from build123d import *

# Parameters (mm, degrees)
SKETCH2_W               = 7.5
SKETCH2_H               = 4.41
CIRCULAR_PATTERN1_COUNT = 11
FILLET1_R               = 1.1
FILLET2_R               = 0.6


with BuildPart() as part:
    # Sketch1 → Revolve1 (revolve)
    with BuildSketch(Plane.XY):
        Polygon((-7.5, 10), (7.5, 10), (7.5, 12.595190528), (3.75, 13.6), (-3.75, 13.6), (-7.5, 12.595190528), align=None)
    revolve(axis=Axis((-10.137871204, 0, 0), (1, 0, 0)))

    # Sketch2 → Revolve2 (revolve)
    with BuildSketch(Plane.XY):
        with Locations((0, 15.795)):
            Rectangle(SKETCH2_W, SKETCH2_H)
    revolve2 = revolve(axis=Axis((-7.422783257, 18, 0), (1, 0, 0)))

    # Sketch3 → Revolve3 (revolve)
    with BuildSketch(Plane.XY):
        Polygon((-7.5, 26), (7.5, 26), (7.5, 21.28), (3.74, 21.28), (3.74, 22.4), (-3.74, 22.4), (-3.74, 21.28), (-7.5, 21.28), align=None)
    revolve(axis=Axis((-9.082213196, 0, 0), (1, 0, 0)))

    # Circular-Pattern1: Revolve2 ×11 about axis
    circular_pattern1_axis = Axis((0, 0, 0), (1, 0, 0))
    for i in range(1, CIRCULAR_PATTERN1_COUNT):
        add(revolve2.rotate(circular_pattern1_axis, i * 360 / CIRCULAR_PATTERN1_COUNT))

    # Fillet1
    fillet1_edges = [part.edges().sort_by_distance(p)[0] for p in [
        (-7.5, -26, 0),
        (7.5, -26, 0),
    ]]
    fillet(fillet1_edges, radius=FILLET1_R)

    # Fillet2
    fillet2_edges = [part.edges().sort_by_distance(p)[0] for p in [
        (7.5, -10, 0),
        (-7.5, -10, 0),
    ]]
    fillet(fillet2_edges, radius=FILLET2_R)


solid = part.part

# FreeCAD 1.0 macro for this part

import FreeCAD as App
import Part
import Sketcher

V = App.Vector
Q = App.Units.Quantity


def edges_at(feature, points):
    """Names of the edges that pass closest to the given points."""
    edges = feature.Shape.Edges
    near = lambda p: min(range(len(edges)), key=lambda i: edges[i].distToShape(Part.Vertex(*p))[0])
    return sorted({f"Edge{near(p) + 1}" for p in points})

doc = App.newDocument("Part")
params = doc.addObject("Spreadsheet::Sheet", "Params")
for row, (alias, value) in enumerate([
    ("sketch1_width", "15 mm"),
    ("sketch1_width2", "7.5 mm"),
    ("revolution_angle", "360 deg"),
    ("sketch2_width", "7.5 mm"),
    ("sketch2_height", "4.41 mm"),
    ("revolution2_angle", "360 deg"),
    ("sketch3_width", "15 mm"),
    ("sketch3_width2", "3.76 mm"),
    ("sketch3_height", "4.72 mm"),
    ("sketch3_height2", "1.12 mm"),
    ("revolution3_angle", "360 deg"),
    ("fillet_radius", "1.1 mm"),
    ("fillet2_radius", "0.6 mm"),
], start=1):
    params.set(f"A{row}", alias)
    params.set(f"B{row}", "=" + value)
    params.setAlias(f"B{row}", alias)

body = doc.addObject("PartDesign::Body", "Body")

# Sketch on XY plane
sketch1 = body.newObject("Sketcher::SketchObject", "Sketch")
sketch1.AttachmentSupport = (doc.getObject("XY_Plane"), [""])
sketch1.MapMode = "FlatFace"
sketch1.addGeometry(Part.LineSegment(V(-7.5, 10, 0), V(7.5, 10, 0)), False)
sketch1.addGeometry(Part.LineSegment(V(7.5, 10, 0), V(7.5, 12.6, 0)), False)
sketch1.addGeometry(Part.LineSegment(V(7.5, 12.6, 0), V(3.8, 13.6, 0)), False)
sketch1.addGeometry(Part.LineSegment(V(3.8, 13.6, 0), V(-3.8, 13.6, 0)), False)
sketch1.addGeometry(Part.LineSegment(V(-3.8, 13.6, 0), V(-7.5, 12.6, 0)), False)
sketch1.addGeometry(Part.LineSegment(V(-7.5, 12.6, 0), V(-7.5, 10, 0)), False)
sketch1.addConstraint(Sketcher.Constraint("Coincident", 0, 2, 1, 1))
sketch1.addConstraint(Sketcher.Constraint("Coincident", 1, 2, 2, 1))
sketch1.addConstraint(Sketcher.Constraint("Coincident", 2, 2, 3, 1))
sketch1.addConstraint(Sketcher.Constraint("Coincident", 3, 2, 4, 1))
sketch1.addConstraint(Sketcher.Constraint("Coincident", 4, 2, 5, 1))
sketch1.addConstraint(Sketcher.Constraint("Coincident", 5, 2, 0, 1))
sketch1.addConstraint(Sketcher.Constraint("Horizontal", 0))
sketch1.addConstraint(Sketcher.Constraint("Vertical", 1))
sketch1.addConstraint(Sketcher.Constraint("Horizontal", 3))
sketch1.addConstraint(Sketcher.Constraint("Vertical", 5))
sketch1.addConstraint(Sketcher.Constraint("Symmetric", 1, 2, 4, 2, -2))
sketch1.addConstraint(Sketcher.Constraint("Equal", 2, 4))
sketch1.addConstraint(Sketcher.Constraint("DistanceX", 0, 1, 0, 2, 15.0))
sketch1.addConstraint(Sketcher.Constraint("Angle", 2, Q("165 deg")))
sketch1.addConstraint(Sketcher.Constraint("DistanceX", 3, 2, 3, 1, 7.5))
sketch1.addConstraint(Sketcher.Constraint("DistanceY", -1, 1, 0, 2, 10.0))
sketch1.addConstraint(Sketcher.Constraint("DistanceY", -1, 1, 2, 2, 13.6))
sketch1.setExpression("Constraints[12]", "Params.sketch1_width")
sketch1.setExpression("Constraints[14]", "Params.sketch1_width2")
revolution = body.newObject("PartDesign::Revolution", "Revolution")
revolution.Profile = sketch1
revolution.ReferenceAxis = (sketch1, ["H_Axis"])
revolution.setExpression("Angle", "Params.revolution_angle")

# Sketch on XY plane
sketch2 = body.newObject("Sketcher::SketchObject", "Sketch001")
sketch2.AttachmentSupport = (doc.getObject("XY_Plane"), [""])
sketch2.MapMode = "FlatFace"
sketch2.addGeometry(Part.LineSegment(V(-3.8, 18, 0), V(-3.8, 13.6, 0)), False)
sketch2.addGeometry(Part.LineSegment(V(-3.8, 13.6, 0), V(3.8, 13.6, 0)), False)
sketch2.addGeometry(Part.LineSegment(V(3.8, 13.6, 0), V(3.8, 18, 0)), False)
sketch2.addGeometry(Part.LineSegment(V(3.8, 18, 0), V(-3.8, 18, 0)), False)
sketch2.addGeometry(Part.LineSegment(V(-3.8, 18, 0), V(3.8, 18, 0)), True)  # axis
sketch2.addConstraint(Sketcher.Constraint("Coincident", 0, 2, 1, 1))
sketch2.addConstraint(Sketcher.Constraint("Coincident", 1, 2, 2, 1))
sketch2.addConstraint(Sketcher.Constraint("Coincident", 2, 2, 3, 1))
sketch2.addConstraint(Sketcher.Constraint("Coincident", 3, 2, 0, 1))
sketch2.addConstraint(Sketcher.Constraint("Vertical", 0))
sketch2.addConstraint(Sketcher.Constraint("Horizontal", 1))
sketch2.addConstraint(Sketcher.Constraint("Vertical", 2))
sketch2.addConstraint(Sketcher.Constraint("Horizontal", 3))
sketch2.addConstraint(Sketcher.Constraint("Horizontal", 4))
sketch2.addConstraint(Sketcher.Constraint("Coincident", 4, 1, 3, 2))
sketch2.addConstraint(Sketcher.Constraint("Vertical", 1, 2, 4, 2))
sketch2.addConstraint(Sketcher.Constraint("DistanceX", 1, 1, 1, 2, 7.5))
sketch2.addConstraint(Sketcher.Constraint("DistanceY", -1, 1, 2, 2, 18.0))
sketch2.addConstraint(Sketcher.Constraint("DistanceY", 0, 2, 0, 1, 4.41))
sketch2.addConstraint(Sketcher.Constraint("DistanceX", 0, 2, -1, 1, 3.75))
sketch2.setExpression("Constraints[11]", "Params.sketch2_width")
sketch2.setExpression("Constraints[13]", "Params.sketch2_height")
revolution2 = body.newObject("PartDesign::Revolution", "Revolution001")
revolution2.Profile = sketch2
revolution2.ReferenceAxis = (sketch2, ["Axis0"])
revolution2.setExpression("Angle", "Params.revolution2_angle")

# Sketch on XY plane
sketch3 = body.newObject("Sketcher::SketchObject", "Sketch002")
sketch3.AttachmentSupport = (doc.getObject("XY_Plane"), [""])
sketch3.MapMode = "FlatFace"
sketch3.addGeometry(Part.LineSegment(V(7.5, 26, 0), V(-7.5, 26, 0)), False)
sketch3.addGeometry(Part.LineSegment(V(-7.5, 26, 0), V(-7.5, 21.3, 0)), False)
sketch3.addGeometry(Part.LineSegment(V(-7.5, 21.3, 0), V(-3.7, 21.3, 0)), False)
sketch3.addGeometry(Part.LineSegment(V(-3.7, 21.3, 0), V(-3.7, 22.4, 0)), False)
sketch3.addGeometry(Part.LineSegment(V(-3.7, 22.4, 0), V(3.7, 22.4, 0)), False)
sketch3.addGeometry(Part.LineSegment(V(3.7, 22.4, 0), V(3.7, 21.3, 0)), False)
sketch3.addGeometry(Part.LineSegment(V(3.7, 21.3, 0), V(7.5, 21.3, 0)), False)
sketch3.addGeometry(Part.LineSegment(V(7.5, 21.3, 0), V(7.5, 26, 0)), False)
sketch3.addConstraint(Sketcher.Constraint("Coincident", 0, 2, 1, 1))
sketch3.addConstraint(Sketcher.Constraint("Coincident", 1, 2, 2, 1))
sketch3.addConstraint(Sketcher.Constraint("Coincident", 2, 2, 3, 1))
sketch3.addConstraint(Sketcher.Constraint("Coincident", 3, 2, 4, 1))
sketch3.addConstraint(Sketcher.Constraint("Coincident", 4, 2, 5, 1))
sketch3.addConstraint(Sketcher.Constraint("Coincident", 5, 2, 6, 1))
sketch3.addConstraint(Sketcher.Constraint("Coincident", 6, 2, 7, 1))
sketch3.addConstraint(Sketcher.Constraint("Coincident", 7, 2, 0, 1))
sketch3.addConstraint(Sketcher.Constraint("Horizontal", 0))
sketch3.addConstraint(Sketcher.Constraint("Vertical", 1))
sketch3.addConstraint(Sketcher.Constraint("Horizontal", 2))
sketch3.addConstraint(Sketcher.Constraint("Vertical", 3))
sketch3.addConstraint(Sketcher.Constraint("Horizontal", 4))
sketch3.addConstraint(Sketcher.Constraint("Vertical", 5))
sketch3.addConstraint(Sketcher.Constraint("Horizontal", 6))
sketch3.addConstraint(Sketcher.Constraint("Vertical", 7))
sketch3.addConstraint(Sketcher.Constraint("Symmetric", 2, 2, 5, 2, -2))
sketch3.addConstraint(Sketcher.Constraint("Equal", 2, 6))
sketch3.addConstraint(Sketcher.Constraint("DistanceX", 0, 2, 0, 1, 15.0))
sketch3.addConstraint(Sketcher.Constraint("DistanceY", -1, 1, 0, 2, 26.0))
sketch3.addConstraint(Sketcher.Constraint("DistanceX", 2, 1, 2, 2, 3.76))
sketch3.addConstraint(Sketcher.Constraint("DistanceY", 1, 2, 1, 1, 4.72))
sketch3.addConstraint(Sketcher.Constraint("DistanceY", 3, 1, 3, 2, 1.12))
sketch3.setExpression("Constraints[18]", "Params.sketch3_width")
sketch3.setExpression("Constraints[20]", "Params.sketch3_width2")
sketch3.setExpression("Constraints[21]", "Params.sketch3_height")
sketch3.setExpression("Constraints[22]", "Params.sketch3_height2")
revolution3 = body.newObject("PartDesign::Revolution", "Revolution002")
revolution3.Profile = sketch3
revolution3.ReferenceAxis = (sketch3, ["H_Axis"])
revolution3.setExpression("Angle", "Params.revolution3_angle")
doc.recompute()

polarpattern = body.newObject("PartDesign::PolarPattern", "PolarPattern")
polarpattern.Originals = [revolution2]
polarpattern.Axis = (doc.getObject("X_Axis"), [""])
polarpattern.Angle = 360
polarpattern.Occurrences = 11
body.Tip = polarpattern
doc.recompute()

fillet = body.newObject("PartDesign::Fillet", "Fillet")
fillet.Base = (polarpattern, edges_at(polarpattern, [(-7.5, -26, 0), (7.5, -26, 0)]))
fillet.setExpression("Radius", "Params.fillet_radius")
doc.recompute()

fillet2 = body.newObject("PartDesign::Fillet", "Fillet001")
fillet2.Base = (fillet, edges_at(fillet, [(7.5, -10, 0), (-7.5, -10, 0)]))
fillet2.setExpression("Radius", "Params.fillet2_radius")

doc.recompute()
